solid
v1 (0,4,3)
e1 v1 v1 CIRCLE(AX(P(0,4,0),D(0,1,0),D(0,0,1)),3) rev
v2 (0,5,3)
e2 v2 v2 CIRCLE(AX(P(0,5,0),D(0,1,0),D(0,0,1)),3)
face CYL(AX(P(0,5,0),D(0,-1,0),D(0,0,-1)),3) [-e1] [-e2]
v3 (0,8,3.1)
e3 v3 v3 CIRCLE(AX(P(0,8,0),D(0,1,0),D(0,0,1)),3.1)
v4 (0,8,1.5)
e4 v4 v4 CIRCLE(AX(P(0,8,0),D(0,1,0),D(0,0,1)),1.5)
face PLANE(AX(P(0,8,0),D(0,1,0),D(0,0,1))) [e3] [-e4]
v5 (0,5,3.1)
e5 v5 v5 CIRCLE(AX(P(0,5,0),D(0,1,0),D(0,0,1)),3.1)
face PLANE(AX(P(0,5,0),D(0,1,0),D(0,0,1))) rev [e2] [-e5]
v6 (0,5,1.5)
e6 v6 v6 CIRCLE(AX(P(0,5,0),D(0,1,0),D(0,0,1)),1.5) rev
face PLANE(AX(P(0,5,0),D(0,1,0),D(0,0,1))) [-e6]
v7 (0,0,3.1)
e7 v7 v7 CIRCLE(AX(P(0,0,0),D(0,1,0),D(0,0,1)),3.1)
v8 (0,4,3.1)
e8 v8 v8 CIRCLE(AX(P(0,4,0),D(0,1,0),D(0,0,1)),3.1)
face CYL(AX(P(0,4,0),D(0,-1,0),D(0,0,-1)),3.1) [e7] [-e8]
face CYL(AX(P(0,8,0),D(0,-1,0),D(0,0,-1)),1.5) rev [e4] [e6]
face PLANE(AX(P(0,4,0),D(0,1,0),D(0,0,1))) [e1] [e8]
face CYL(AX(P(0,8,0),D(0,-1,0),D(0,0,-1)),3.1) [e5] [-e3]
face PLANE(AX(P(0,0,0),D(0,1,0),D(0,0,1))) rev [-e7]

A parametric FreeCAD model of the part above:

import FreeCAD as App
import Part
import Sketcher
from FreeCAD import Vector
Q = App.Units.Quantity

doc = App.newDocument("Part")
params = doc.addObject("Spreadsheet::Sheet", "Params")
for row, (alias, value) in enumerate([
    ("sketch1_diameter", "6.2 mm"),
    ("pad1_length", "4 mm"),
    ("sketch2_diameter", "6 mm"),
    ("pad2_length", "5 mm"),
    ("sketch3_diameter", "3 mm"),
    ("sketch3_diameter2", "6.2 mm"),
    ("pad3_length", "3 mm"),
], start=1):
    params.set(f"A{row}", alias)
    params.set(f"B{row}", "=" + value)
    params.setAlias(f"B{row}", alias)

body = doc.addObject("PartDesign::Body", "Body")

sketch1 = body.newObject("Sketcher::SketchObject", "Sketch")
sketch1.AttachmentSupport = (doc.getObject("XZ_Plane"), [""])
sketch1.MapMode = "FlatFace"
sketch1.addGeometry(Part.Circle(Vector(0, 0, 0), Vector(0, 0, 1), 3.1), False)
sketch1.addConstraint([
    Sketcher.Constraint("Coincident", 0, 3, -1, 1),
    Sketcher.Constraint("Diameter", 0, Q("6.2 mm")),
])
sketch1.setExpression("Constraints[1]", "Params.sketch1_diameter")
pad1 = body.newObject("PartDesign::Pad", "Pad")
pad1.Profile = sketch1
pad1.setExpression("Length", "Params.pad1_length")
pad1.Reversed = True

sketch2 = body.newObject("Sketcher::SketchObject", "Sketch001")
sketch2.AttachmentSupport = (doc.getObject("XZ_Plane"), [""])
sketch2.MapMode = "FlatFace"
sketch2.addGeometry(Part.Circle(Vector(0, 0, 0), Vector(0, 0, 1), 3), False)
sketch2.addConstraint([
    Sketcher.Constraint("Coincident", 0, 3, -1, 1),
    Sketcher.Constraint("Diameter", 0, Q("6 mm")),
])
sketch2.setExpression("Constraints[1]", "Params.sketch2_diameter")
pad2 = body.newObject("PartDesign::Pad", "Pad001")
pad2.Profile = sketch2
pad2.setExpression("Length", "Params.pad2_length")
pad2.Reversed = True

sketch3 = body.newObject("Sketcher::SketchObject", "Sketch002")
sketch3.AttachmentSupport = (doc.getObject("XZ_Plane"), [""])
sketch3.MapMode = "FlatFace"
sketch3.AttachmentOffset = App.Placement(Vector(0, 0, -5), App.Rotation())
sketch3.addGeometry([
    Part.Circle(Vector(0, 0, 0), Vector(0, 0, 1), 3.1),
    Part.Circle(Vector(0, 0, 0), Vector(0, 0, 1), 1.5),
], False)
sketch3.addConstraint([
    Sketcher.Constraint("Coincident", 0, 3, -1, 1),
    Sketcher.Constraint("Coincident", 1, 3, -1, 1),
    Sketcher.Constraint("Diameter", 1, Q("3 mm")),
    Sketcher.Constraint("Diameter", 0, Q("6.2 mm")),
])
sketch3.setExpression("Constraints[2]", "Params.sketch3_diameter")
sketch3.setExpression("Constraints[3]", "Params.sketch3_diameter2")
pad3 = body.newObject("PartDesign::Pad", "Pad002")
pad3.Profile = sketch3
pad3.setExpression("Length", "Params.pad3_length")
pad3.Reversed = True

doc.recompute()
